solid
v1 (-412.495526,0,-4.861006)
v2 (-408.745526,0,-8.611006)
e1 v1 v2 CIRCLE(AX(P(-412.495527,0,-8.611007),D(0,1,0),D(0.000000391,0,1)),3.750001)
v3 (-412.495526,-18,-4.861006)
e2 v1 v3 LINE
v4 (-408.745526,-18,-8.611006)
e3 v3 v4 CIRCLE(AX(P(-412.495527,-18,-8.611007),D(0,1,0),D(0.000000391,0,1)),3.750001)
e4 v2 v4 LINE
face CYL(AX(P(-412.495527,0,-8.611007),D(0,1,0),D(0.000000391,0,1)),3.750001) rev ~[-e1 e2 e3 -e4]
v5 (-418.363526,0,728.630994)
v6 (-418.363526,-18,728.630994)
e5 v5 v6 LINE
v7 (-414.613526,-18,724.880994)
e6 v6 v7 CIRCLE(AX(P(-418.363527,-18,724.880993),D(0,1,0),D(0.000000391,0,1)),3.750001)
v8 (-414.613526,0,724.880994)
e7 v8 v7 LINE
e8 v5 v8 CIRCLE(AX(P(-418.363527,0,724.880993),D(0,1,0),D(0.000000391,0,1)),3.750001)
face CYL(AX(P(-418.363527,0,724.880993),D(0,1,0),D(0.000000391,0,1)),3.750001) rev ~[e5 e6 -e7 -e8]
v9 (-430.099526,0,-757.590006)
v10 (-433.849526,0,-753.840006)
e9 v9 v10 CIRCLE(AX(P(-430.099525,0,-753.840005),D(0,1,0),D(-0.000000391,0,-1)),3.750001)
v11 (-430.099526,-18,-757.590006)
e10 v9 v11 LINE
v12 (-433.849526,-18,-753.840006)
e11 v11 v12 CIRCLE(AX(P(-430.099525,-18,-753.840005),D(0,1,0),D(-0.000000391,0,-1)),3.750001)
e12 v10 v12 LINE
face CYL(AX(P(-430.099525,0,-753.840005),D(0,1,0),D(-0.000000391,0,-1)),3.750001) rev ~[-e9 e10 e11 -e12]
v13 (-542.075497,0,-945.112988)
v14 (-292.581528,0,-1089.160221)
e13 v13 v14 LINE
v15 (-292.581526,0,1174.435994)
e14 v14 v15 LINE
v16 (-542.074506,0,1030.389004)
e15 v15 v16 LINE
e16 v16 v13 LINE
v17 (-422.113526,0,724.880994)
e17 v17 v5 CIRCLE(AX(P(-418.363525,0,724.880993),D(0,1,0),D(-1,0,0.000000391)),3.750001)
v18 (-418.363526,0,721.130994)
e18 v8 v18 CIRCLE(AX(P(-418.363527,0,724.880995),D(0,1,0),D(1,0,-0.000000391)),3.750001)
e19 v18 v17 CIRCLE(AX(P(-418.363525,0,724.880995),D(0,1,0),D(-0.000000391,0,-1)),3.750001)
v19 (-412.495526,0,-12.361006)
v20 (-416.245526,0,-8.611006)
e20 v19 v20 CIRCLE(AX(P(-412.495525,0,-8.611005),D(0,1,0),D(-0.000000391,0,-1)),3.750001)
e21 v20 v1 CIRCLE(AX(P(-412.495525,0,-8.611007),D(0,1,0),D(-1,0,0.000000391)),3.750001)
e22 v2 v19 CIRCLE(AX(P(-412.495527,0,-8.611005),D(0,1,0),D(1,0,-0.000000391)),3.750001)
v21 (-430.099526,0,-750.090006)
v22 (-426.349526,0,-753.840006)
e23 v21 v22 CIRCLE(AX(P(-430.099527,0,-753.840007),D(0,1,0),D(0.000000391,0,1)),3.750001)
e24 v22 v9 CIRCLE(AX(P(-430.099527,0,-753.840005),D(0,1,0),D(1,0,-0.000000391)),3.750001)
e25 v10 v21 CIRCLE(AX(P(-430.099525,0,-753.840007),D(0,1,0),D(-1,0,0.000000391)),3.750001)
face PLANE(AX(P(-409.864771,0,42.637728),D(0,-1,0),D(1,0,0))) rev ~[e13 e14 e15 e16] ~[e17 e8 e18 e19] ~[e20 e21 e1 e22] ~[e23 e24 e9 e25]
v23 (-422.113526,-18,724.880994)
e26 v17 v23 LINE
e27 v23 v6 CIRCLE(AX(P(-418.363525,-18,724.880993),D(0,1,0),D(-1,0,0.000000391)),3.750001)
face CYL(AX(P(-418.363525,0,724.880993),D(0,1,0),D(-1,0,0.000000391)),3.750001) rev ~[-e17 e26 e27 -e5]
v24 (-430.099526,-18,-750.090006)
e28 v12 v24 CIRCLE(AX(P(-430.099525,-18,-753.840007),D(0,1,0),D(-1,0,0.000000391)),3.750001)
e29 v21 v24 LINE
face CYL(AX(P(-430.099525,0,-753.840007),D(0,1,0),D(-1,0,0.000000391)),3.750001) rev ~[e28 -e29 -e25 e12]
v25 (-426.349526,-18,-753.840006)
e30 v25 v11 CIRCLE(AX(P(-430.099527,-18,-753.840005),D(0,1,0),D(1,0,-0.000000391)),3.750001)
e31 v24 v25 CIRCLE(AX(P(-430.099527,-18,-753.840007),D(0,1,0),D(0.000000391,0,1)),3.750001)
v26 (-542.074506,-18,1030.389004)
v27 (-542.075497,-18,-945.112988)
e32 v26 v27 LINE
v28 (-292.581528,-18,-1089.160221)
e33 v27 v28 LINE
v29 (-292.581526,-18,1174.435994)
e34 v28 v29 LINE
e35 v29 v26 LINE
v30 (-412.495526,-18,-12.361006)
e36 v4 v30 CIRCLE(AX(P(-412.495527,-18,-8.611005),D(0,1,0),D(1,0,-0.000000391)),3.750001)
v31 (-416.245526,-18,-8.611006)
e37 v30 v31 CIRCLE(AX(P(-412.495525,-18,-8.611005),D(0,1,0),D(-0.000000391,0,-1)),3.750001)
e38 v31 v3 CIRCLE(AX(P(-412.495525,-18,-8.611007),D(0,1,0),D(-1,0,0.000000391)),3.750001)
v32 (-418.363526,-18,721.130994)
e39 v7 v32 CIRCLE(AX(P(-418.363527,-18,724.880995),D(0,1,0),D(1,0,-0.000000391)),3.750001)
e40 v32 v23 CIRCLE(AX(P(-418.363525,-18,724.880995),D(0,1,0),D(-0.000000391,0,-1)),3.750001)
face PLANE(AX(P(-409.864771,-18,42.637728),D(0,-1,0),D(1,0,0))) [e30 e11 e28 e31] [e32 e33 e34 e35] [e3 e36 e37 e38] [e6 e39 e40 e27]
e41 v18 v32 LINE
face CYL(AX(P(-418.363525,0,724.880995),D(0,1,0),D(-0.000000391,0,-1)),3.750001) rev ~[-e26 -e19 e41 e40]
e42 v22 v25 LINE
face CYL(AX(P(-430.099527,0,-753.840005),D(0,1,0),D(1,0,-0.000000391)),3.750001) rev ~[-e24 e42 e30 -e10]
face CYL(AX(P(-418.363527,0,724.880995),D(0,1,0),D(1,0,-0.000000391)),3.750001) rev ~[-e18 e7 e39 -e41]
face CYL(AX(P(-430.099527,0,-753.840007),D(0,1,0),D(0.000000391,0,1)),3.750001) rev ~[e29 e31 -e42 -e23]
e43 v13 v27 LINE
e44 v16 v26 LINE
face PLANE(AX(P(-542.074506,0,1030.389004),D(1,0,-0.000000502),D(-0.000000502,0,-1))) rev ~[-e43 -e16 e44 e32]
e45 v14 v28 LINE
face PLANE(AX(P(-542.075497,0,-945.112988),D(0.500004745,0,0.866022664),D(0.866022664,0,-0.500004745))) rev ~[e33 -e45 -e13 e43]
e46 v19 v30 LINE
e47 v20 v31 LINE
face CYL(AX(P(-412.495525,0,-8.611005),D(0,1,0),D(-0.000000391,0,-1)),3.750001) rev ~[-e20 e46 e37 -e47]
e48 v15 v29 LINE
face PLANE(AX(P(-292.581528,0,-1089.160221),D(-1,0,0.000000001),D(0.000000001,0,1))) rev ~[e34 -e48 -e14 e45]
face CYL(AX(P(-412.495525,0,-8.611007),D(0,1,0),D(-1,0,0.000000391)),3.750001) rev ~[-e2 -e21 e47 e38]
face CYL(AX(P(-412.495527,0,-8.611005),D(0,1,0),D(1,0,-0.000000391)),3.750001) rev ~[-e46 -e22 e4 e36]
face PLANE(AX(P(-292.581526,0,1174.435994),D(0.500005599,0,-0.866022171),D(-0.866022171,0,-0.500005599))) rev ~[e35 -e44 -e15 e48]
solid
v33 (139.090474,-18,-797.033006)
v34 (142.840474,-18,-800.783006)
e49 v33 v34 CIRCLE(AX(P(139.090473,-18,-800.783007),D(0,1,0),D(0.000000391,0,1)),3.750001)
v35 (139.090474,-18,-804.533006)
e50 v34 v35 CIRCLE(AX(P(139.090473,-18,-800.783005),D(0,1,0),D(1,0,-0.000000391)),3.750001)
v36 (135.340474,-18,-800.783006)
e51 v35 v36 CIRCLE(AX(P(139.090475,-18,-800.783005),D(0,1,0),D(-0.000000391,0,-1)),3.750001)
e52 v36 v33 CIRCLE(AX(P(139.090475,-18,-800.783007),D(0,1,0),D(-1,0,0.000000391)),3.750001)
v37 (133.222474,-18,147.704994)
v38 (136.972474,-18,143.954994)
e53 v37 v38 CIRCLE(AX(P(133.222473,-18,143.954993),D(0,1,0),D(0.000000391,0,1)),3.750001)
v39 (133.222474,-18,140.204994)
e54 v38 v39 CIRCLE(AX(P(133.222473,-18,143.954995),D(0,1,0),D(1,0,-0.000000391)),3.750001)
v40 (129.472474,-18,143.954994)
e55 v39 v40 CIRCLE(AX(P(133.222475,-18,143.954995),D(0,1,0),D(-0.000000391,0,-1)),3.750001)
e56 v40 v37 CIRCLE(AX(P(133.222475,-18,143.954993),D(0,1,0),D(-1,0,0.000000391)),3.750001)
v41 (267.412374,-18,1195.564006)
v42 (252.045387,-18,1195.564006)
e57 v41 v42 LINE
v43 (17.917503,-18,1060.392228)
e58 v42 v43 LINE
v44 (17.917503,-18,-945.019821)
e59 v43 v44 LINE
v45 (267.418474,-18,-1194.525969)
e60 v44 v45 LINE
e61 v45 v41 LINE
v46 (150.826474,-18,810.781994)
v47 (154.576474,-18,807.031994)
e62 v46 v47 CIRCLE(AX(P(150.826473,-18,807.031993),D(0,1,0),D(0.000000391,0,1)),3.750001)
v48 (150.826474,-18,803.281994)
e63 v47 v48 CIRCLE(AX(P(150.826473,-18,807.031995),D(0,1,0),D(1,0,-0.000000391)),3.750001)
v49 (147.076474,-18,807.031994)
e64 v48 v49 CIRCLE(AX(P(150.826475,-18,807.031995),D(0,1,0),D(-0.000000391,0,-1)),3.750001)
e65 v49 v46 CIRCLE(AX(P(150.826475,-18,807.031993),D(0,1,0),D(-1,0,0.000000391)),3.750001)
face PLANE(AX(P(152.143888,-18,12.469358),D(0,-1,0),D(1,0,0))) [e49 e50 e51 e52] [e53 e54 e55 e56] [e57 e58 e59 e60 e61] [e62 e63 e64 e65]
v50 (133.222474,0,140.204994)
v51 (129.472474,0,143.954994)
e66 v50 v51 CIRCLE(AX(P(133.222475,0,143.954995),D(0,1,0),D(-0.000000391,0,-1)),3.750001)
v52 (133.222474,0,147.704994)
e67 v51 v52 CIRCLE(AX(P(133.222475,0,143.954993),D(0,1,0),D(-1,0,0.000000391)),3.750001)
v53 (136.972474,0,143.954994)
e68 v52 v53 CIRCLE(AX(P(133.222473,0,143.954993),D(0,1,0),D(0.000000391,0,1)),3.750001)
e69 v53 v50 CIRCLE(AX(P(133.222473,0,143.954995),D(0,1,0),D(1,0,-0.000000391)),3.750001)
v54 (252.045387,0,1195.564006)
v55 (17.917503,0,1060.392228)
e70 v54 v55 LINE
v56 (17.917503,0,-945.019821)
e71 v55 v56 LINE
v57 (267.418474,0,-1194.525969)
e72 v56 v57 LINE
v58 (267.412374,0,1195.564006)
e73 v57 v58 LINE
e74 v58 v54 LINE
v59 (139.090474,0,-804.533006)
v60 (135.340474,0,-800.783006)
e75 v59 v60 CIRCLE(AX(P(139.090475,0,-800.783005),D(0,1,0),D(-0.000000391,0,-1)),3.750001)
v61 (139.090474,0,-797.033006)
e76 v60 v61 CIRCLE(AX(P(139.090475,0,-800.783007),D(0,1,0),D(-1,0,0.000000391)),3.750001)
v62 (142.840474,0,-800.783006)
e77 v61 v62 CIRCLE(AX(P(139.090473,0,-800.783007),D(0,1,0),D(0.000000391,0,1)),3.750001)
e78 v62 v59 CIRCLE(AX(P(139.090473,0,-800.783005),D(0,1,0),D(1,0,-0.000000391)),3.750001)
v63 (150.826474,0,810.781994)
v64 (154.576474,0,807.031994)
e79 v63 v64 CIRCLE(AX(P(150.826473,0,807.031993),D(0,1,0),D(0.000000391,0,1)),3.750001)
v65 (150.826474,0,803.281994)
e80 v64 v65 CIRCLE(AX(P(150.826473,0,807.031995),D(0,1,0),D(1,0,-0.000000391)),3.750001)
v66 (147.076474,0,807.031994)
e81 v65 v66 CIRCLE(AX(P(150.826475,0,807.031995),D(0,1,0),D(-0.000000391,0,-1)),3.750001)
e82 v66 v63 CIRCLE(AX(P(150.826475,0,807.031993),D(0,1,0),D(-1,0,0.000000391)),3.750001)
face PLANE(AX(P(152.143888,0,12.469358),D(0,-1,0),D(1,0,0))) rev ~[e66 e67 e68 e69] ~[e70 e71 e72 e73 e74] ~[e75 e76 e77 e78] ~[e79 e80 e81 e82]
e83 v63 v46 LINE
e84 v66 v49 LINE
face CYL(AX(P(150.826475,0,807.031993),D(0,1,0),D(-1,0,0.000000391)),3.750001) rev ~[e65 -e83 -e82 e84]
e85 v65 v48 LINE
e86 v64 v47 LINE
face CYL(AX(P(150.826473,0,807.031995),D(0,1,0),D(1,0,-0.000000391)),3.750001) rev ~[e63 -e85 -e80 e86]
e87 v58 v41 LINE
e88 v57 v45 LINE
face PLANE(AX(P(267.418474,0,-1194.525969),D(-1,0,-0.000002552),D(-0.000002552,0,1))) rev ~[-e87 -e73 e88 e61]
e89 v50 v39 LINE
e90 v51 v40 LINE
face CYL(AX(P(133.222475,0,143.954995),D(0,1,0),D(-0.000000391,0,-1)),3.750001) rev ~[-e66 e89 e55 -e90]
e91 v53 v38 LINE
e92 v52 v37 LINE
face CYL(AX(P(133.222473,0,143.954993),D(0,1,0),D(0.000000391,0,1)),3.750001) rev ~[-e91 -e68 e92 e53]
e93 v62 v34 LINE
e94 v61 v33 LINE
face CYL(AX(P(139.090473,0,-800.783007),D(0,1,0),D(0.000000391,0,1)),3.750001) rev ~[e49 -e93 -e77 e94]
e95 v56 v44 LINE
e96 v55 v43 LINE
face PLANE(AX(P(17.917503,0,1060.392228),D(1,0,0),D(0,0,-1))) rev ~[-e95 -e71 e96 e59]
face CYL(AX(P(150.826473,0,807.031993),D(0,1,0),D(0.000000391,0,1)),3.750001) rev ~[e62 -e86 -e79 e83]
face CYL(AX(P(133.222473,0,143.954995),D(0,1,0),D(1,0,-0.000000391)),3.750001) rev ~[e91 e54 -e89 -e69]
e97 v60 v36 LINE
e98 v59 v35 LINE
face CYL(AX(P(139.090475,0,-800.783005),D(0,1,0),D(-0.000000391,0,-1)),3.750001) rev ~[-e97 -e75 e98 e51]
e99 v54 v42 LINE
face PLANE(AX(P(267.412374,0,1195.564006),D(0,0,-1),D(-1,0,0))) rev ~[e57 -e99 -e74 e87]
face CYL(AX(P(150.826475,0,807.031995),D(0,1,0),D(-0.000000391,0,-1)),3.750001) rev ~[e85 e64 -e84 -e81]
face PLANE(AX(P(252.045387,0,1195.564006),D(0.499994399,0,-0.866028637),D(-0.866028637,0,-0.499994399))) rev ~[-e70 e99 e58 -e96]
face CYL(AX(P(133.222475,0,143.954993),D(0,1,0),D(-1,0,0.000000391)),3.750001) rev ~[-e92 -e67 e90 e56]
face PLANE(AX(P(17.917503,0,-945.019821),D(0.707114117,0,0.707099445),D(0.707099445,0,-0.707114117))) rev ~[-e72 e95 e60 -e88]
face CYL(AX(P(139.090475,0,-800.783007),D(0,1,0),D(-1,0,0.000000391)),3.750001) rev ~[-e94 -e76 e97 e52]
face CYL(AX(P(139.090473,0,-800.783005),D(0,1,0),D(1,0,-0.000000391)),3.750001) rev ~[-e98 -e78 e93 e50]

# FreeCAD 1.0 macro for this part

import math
import FreeCAD as App
import Part
import Sketcher
from FreeCAD import Vector

doc = App.newDocument("Part")
params = doc.addObject("Spreadsheet::Sheet", "Params")
for row, (alias, value) in enumerate([
    ("sketch1_radius", "3.750001 mm"),
    ("pad1_length", "18 mm"),
    ("sketch2_radius", "3.750001 mm"),
    ("pad2_length", "18 mm"),
], start=1):
    params.set(f"A{row}", alias)
    params.set(f"B{row}", "=" + value)
    params.setAlias(f"B{row}", alias)

body = doc.addObject("PartDesign::Body", "Body")

# Sketch on XZ plane
sketch1 = doc.addObject("Sketcher::SketchObject", "Sketch")
body.addObject(sketch1)
sketch1.AttachmentSupport = (doc.XZ_Plane, [""])
sketch1.MapMode = "FlatFace"
sketch1.addGeometry(Part.LineSegment(Vector(-292.581528, -1089.160221, 0), Vector(-292.581526, 1174.435994, 0)), False)
sketch1.addGeometry(Part.LineSegment(Vector(-292.581526, 1174.435994, 0), Vector(-542.074506, 1030.389004, 0)), False)
sketch1.addGeometry(Part.LineSegment(Vector(-542.074506, 1030.389004, 0), Vector(-542.075497, -945.112988, 0)), False)
sketch1.addGeometry(Part.LineSegment(Vector(-542.075497, -945.112988, 0), Vector(-292.581528, -1089.160221, 0)), False)
sketch1.addGeometry(Part.ArcOfCircle(Part.Circle(Vector(-430.099525, -753.840005, 0), Vector(0, 0, 1), 3.750001), math.radians(-179.999978), math.radians(-90.000022)), False)
sketch1.addGeometry(Part.ArcOfCircle(Part.Circle(Vector(-430.099525, -753.840007, 0), Vector(0, 0, 1), 3.750001), math.radians(90.000022), math.radians(179.999978)), False)
sketch1.addGeometry(Part.ArcOfCircle(Part.Circle(Vector(-430.099527, -753.840007, 0), Vector(0, 0, 1), 3.750001), math.radians(0.000022), math.radians(89.999978)), False)
sketch1.addGeometry(Part.ArcOfCircle(Part.Circle(Vector(-430.099527, -753.840005, 0), Vector(0, 0, 1), 3.750001), math.radians(-89.999978), math.radians(-0.000022)), False)
sketch1.addGeometry(Part.ArcOfCircle(Part.Circle(Vector(-412.495525, -8.611005, 0), Vector(0, 0, 1), 3.750001), math.radians(-179.999978), math.radians(-90.000022)), False)
sketch1.addGeometry(Part.ArcOfCircle(Part.Circle(Vector(-412.495525, -8.611007, 0), Vector(0, 0, 1), 3.750001), math.radians(90.000022), math.radians(179.999978)), False)
sketch1.addGeometry(Part.ArcOfCircle(Part.Circle(Vector(-412.495527, -8.611007, 0), Vector(0, 0, 1), 3.750001), math.radians(0.000022), math.radians(89.999978)), False)
sketch1.addGeometry(Part.ArcOfCircle(Part.Circle(Vector(-412.495527, -8.611005, 0), Vector(0, 0, 1), 3.750001), math.radians(-89.999978), math.radians(-0.000022)), False)
sketch1.addGeometry(Part.ArcOfCircle(Part.Circle(Vector(-418.363525, 724.880995, 0), Vector(0, 0, 1), 3.750001), math.radians(-179.999978), math.radians(-90.000022)), False)
sketch1.addGeometry(Part.ArcOfCircle(Part.Circle(Vector(-418.363525, 724.880993, 0), Vector(0, 0, 1), 3.750001), math.radians(90.000022), math.radians(179.999978)), False)
sketch1.addGeometry(Part.ArcOfCircle(Part.Circle(Vector(-418.363527, 724.880993, 0), Vector(0, 0, 1), 3.750001), math.radians(0.000022), math.radians(89.999978)), False)
sketch1.addGeometry(Part.ArcOfCircle(Part.Circle(Vector(-418.363527, 724.880995, 0), Vector(0, 0, 1), 3.750001), math.radians(-89.999978), math.radians(-0.000022)), False)
sketch1.addConstraint(Sketcher.Constraint("Coincident", 0, 2, 1, 1))
sketch1.addConstraint(Sketcher.Constraint("Coincident", 1, 2, 2, 1))
sketch1.addConstraint(Sketcher.Constraint("Coincident", 2, 2, 3, 1))
sketch1.addConstraint(Sketcher.Constraint("Coincident", 3, 2, 0, 1))
sketch1.addConstraint(Sketcher.Constraint("Tangent", 4, 1, 5, 2))
sketch1.addConstraint(Sketcher.Constraint("Tangent", 5, 1, 6, 2))
sketch1.addConstraint(Sketcher.Constraint("Tangent", 6, 1, 7, 2))
sketch1.addConstraint(Sketcher.Constraint("Tangent", 7, 1, 4, 2))
sketch1.addConstraint(Sketcher.Constraint("Tangent", 8, 1, 9, 2))
sketch1.addConstraint(Sketcher.Constraint("Tangent", 9, 1, 10, 2))
sketch1.addConstraint(Sketcher.Constraint("Tangent", 10, 1, 11, 2))
sketch1.addConstraint(Sketcher.Constraint("Tangent", 11, 1, 8, 2))
sketch1.addConstraint(Sketcher.Constraint("Tangent", 12, 1, 13, 2))
sketch1.addConstraint(Sketcher.Constraint("Tangent", 13, 1, 14, 2))
sketch1.addConstraint(Sketcher.Constraint("Tangent", 14, 1, 15, 2))
sketch1.addConstraint(Sketcher.Constraint("Tangent", 15, 1, 12, 2))
sketch1.addConstraint(Sketcher.Constraint("Vertical", 0))
sketch1.addConstraint(Sketcher.Constraint("Equal", 4, 5))
sketch1.addConstraint(Sketcher.Constraint("Equal", 7, 8))
sketch1.addConstraint(Sketcher.Constraint("Equal", 8, 9))
sketch1.addConstraint(Sketcher.Constraint("Equal", 11, 12))
sketch1.addConstraint(Sketcher.Constraint("Equal", 12, 13))
sketch1.addConstraint(Sketcher.Constraint("Horizontal", 7, 3, 4, 1))
sketch1.addConstraint(Sketcher.Constraint("Horizontal", 4, 1, 6, 1))
sketch1.addConstraint(Sketcher.Constraint("Horizontal", 11, 3, 8, 1))
sketch1.addConstraint(Sketcher.Constraint("Horizontal", 8, 1, 10, 1))
sketch1.addConstraint(Sketcher.Constraint("Horizontal", 15, 3, 12, 1))
sketch1.addConstraint(Sketcher.Constraint("Horizontal", 12, 1, 14, 1))
sketch1.addConstraint(Sketcher.Constraint("Vertical", 7, 3, 5, 1))
sketch1.addConstraint(Sketcher.Constraint("Vertical", 5, 1, 7, 1))
sketch1.addConstraint(Sketcher.Constraint("Vertical", 11, 3, 9, 1))
sketch1.addConstraint(Sketcher.Constraint("Vertical", 9, 1, 11, 1))
sketch1.addConstraint(Sketcher.Constraint("Vertical", 15, 3, 13, 1))
sketch1.addConstraint(Sketcher.Constraint("Vertical", 13, 1, 15, 1))
sketch1.addConstraint(Sketcher.Constraint("Radius", 4, 3.750001))
sketch1.addConstraint(Sketcher.Constraint("DistanceX", 4, 3, 8, 3, 17.604))
sketch1.addConstraint(Sketcher.Constraint("DistanceY", 4, 3, 8, 3, 745.229))
sketch1.addConstraint(Sketcher.Constraint("DistanceY", 11, 3, 12, 3, 733.492))
sketch1.addConstraint(Sketcher.Constraint("DistanceX", 12, 3, 8, 3, 5.868))
sketch1.addConstraint(Sketcher.Constraint("DistanceX", 12, 3, 0, 2, 125.781999))
sketch1.addConstraint(Sketcher.Constraint("DistanceY", 12, 3, 0, 2, 449.554999))
sketch1.addConstraint(Sketcher.Constraint("Distance", 3, 288.091732))
sketch1.addConstraint(Sketcher.Constraint("DistanceY", 0, 1, 0, 2, 2263.596215))
sketch1.addConstraint(Sketcher.Constraint("DistanceY", 2, 2, -1, 1, 945.112988))
sketch1.addConstraint(Sketcher.Constraint("DistanceX", 3, 2, -1, 1, 292.581528))
sketch1.addConstraint(Sketcher.Constraint("DistanceY", 3, 2, -1, 1, 1089.160221))
sketch1.addConstraint(Sketcher.Constraint("DistanceX", 1, 2, 0, 2, 249.49298))
sketch1.addConstraint(Sketcher.Constraint("DistanceY", 1, 2, 0, 2, 144.04699))
sketch1.setExpression("Constraints[34]", "Params.sketch1_radius")
pad1 = doc.addObject("PartDesign::Pad", "Pad")
body.addObject(pad1)
pad1.Profile = sketch1
pad1.setExpression("Length", "Params.pad1_length")
body2 = doc.addObject("PartDesign::Body", "Body001")

# Sketch on XZ plane
sketch2 = doc.addObject("Sketcher::SketchObject", "Sketch001")
body2.addObject(sketch2)
sketch2.AttachmentSupport = (doc.getObject("XZ_Plane001"), [""])
sketch2.MapMode = "FlatFace"
sketch2.addGeometry(Part.LineSegment(Vector(267.412374, 1195.564006, 0), Vector(252.045387, 1195.564006, 0)), False)
sketch2.addGeometry(Part.LineSegment(Vector(252.045387, 1195.564006, 0), Vector(17.917503, 1060.392228, 0)), False)
sketch2.addGeometry(Part.LineSegment(Vector(17.917503, 1060.392228, 0), Vector(17.917503, -945.019821, 0)), False)
sketch2.addGeometry(Part.LineSegment(Vector(17.917503, -945.019821, 0), Vector(267.418474, -1194.525969, 0)), False)
sketch2.addGeometry(Part.LineSegment(Vector(267.418474, -1194.525969, 0), Vector(267.412374, 1195.564006, 0)), False)
sketch2.addGeometry(Part.ArcOfCircle(Part.Circle(Vector(139.090475, -800.783005, 0), Vector(0, 0, 1), 3.750001), math.radians(-179.999978), math.radians(-90.000022)), False)
sketch2.addGeometry(Part.ArcOfCircle(Part.Circle(Vector(139.090475, -800.783007, 0), Vector(0, 0, 1), 3.750001), math.radians(90.000022), math.radians(179.999978)), False)
sketch2.addGeometry(Part.ArcOfCircle(Part.Circle(Vector(139.090473, -800.783007, 0), Vector(0, 0, 1), 3.750001), math.radians(0.000022), math.radians(89.999978)), False)
sketch2.addGeometry(Part.ArcOfCircle(Part.Circle(Vector(139.090473, -800.783005, 0), Vector(0, 0, 1), 3.750001), math.radians(-89.999978), math.radians(-0.000022)), False)
sketch2.addGeometry(Part.ArcOfCircle(Part.Circle(Vector(133.222475, 143.954995, 0), Vector(0, 0, 1), 3.750001), math.radians(-179.999978), math.radians(-90.000022)), False)
sketch2.addGeometry(Part.ArcOfCircle(Part.Circle(Vector(133.222475, 143.954993, 0), Vector(0, 0, 1), 3.750001), math.radians(90.000022), math.radians(179.999978)), False)
sketch2.addGeometry(Part.ArcOfCircle(Part.Circle(Vector(133.222473, 143.954993, 0), Vector(0, 0, 1), 3.750001), math.radians(0.000022), math.radians(89.999978)), False)
sketch2.addGeometry(Part.ArcOfCircle(Part.Circle(Vector(133.222473, 143.954995, 0), Vector(0, 0, 1), 3.750001), math.radians(-89.999978), math.radians(-0.000022)), False)
sketch2.addGeometry(Part.ArcOfCircle(Part.Circle(Vector(150.826475, 807.031995, 0), Vector(0, 0, 1), 3.750001), math.radians(-179.999978), math.radians(-90.000022)), False)
sketch2.addGeometry(Part.ArcOfCircle(Part.Circle(Vector(150.826475, 807.031993, 0), Vector(0, 0, 1), 3.750001), math.radians(90.000022), math.radians(179.999978)), False)
sketch2.addGeometry(Part.ArcOfCircle(Part.Circle(Vector(150.826473, 807.031993, 0), Vector(0, 0, 1), 3.750001), math.radians(0.000022), math.radians(89.999978)), False)
sketch2.addGeometry(Part.ArcOfCircle(Part.Circle(Vector(150.826473, 807.031995, 0), Vector(0, 0, 1), 3.750001), math.radians(-89.999978), math.radians(-0.000022)), False)
sketch2.addConstraint(Sketcher.Constraint("Coincident", 0, 2, 1, 1))
sketch2.addConstraint(Sketcher.Constraint("Coincident", 1, 2, 2, 1))
sketch2.addConstraint(Sketcher.Constraint("Coincident", 2, 2, 3, 1))
sketch2.addConstraint(Sketcher.Constraint("Coincident", 3, 2, 4, 1))
sketch2.addConstraint(Sketcher.Constraint("Coincident", 4, 2, 0, 1))
sketch2.addConstraint(Sketcher.Constraint("Tangent", 5, 1, 6, 2))
sketch2.addConstraint(Sketcher.Constraint("Tangent", 6, 1, 7, 2))
sketch2.addConstraint(Sketcher.Constraint("Tangent", 7, 1, 8, 2))
sketch2.addConstraint(Sketcher.Constraint("Tangent", 8, 1, 5, 2))
sketch2.addConstraint(Sketcher.Constraint("Tangent", 9, 1, 10, 2))
sketch2.addConstraint(Sketcher.Constraint("Tangent", 10, 1, 11, 2))
sketch2.addConstraint(Sketcher.Constraint("Tangent", 11, 1, 12, 2))
sketch2.addConstraint(Sketcher.Constraint("Tangent", 12, 1, 9, 2))
sketch2.addConstraint(Sketcher.Constraint("Tangent", 13, 1, 14, 2))
sketch2.addConstraint(Sketcher.Constraint("Tangent", 14, 1, 15, 2))
sketch2.addConstraint(Sketcher.Constraint("Tangent", 15, 1, 16, 2))
sketch2.addConstraint(Sketcher.Constraint("Tangent", 16, 1, 13, 2))
sketch2.addConstraint(Sketcher.Constraint("Horizontal", 0))
sketch2.addConstraint(Sketcher.Constraint("Vertical", 2))
sketch2.addConstraint(Sketcher.Constraint("Equal", 5, 6))
sketch2.addConstraint(Sketcher.Constraint("Equal", 8, 9))
sketch2.addConstraint(Sketcher.Constraint("Equal", 9, 10))
sketch2.addConstraint(Sketcher.Constraint("Equal", 12, 13))
sketch2.addConstraint(Sketcher.Constraint("Equal", 13, 14))
sketch2.addConstraint(Sketcher.Constraint("Horizontal", 8, 3, 5, 1))
sketch2.addConstraint(Sketcher.Constraint("Horizontal", 5, 1, 7, 1))
sketch2.addConstraint(Sketcher.Constraint("Horizontal", 12, 3, 9, 1))
sketch2.addConstraint(Sketcher.Constraint("Horizontal", 9, 1, 11, 1))
sketch2.addConstraint(Sketcher.Constraint("Horizontal", 16, 3, 13, 1))
sketch2.addConstraint(Sketcher.Constraint("Horizontal", 13, 1, 15, 1))
sketch2.addConstraint(Sketcher.Constraint("Vertical", 8, 3, 6, 1))
sketch2.addConstraint(Sketcher.Constraint("Vertical", 6, 1, 8, 1))
sketch2.addConstraint(Sketcher.Constraint("Vertical", 12, 3, 10, 1))
sketch2.addConstraint(Sketcher.Constraint("Vertical", 10, 1, 12, 1))
sketch2.addConstraint(Sketcher.Constraint("Vertical", 16, 3, 14, 1))
sketch2.addConstraint(Sketcher.Constraint("Vertical", 14, 1, 16, 1))
sketch2.addConstraint(Sketcher.Constraint("Radius", 5, 3.750001))
sketch2.addConstraint(Sketcher.Constraint("DistanceY", 8, 3, 9, 3, 944.738))
sketch2.addConstraint(Sketcher.Constraint("DistanceX", 9, 3, 5, 3, 5.868))
sketch2.addConstraint(Sketcher.Constraint("DistanceX", 9, 3, 13, 3, 17.604))
sketch2.addConstraint(Sketcher.Constraint("DistanceY", 9, 3, 13, 3, 663.077))
sketch2.addConstraint(Sketcher.Constraint("DistanceX", 6, 3, 3, 2, 128.327999))
sketch2.addConstraint(Sketcher.Constraint("DistanceY", 2, 2, 2, 1, 2005.412049))
sketch2.addConstraint(Sketcher.Constraint("DistanceX", 13, 3, 4, 2, 116.585899))
sketch2.addConstraint(Sketcher.Constraint("DistanceX", 0, 2, 0, 1, 15.366987))
sketch2.addConstraint(Sketcher.Constraint("DistanceY", -1, 1, 1, 2, 1060.392228))
sketch2.addConstraint(Sketcher.Constraint("DistanceY", 3, 2, -1, 1, 1194.525969))
sketch2.addConstraint(Sketcher.Constraint("DistanceY", 13, 3, 0, 2, 388.532011))
sketch2.addConstraint(Sketcher.Constraint("DistanceY", 1, 2, 0, 2, 135.171778))
sketch2.addConstraint(Sketcher.Constraint("DistanceX", 1, 2, 16, 3, 132.90897))
sketch2.addConstraint(Sketcher.Constraint("DistanceX", -1, 1, 5, 3, 139.090475))
sketch2.setExpression("Constraints[36]", "Params.sketch2_radius")
pad2 = doc.addObject("PartDesign::Pad", "Pad001")
body2.addObject(pad2)
pad2.Profile = sketch2
pad2.setExpression("Length", "Params.pad2_length")

doc.recompute()
